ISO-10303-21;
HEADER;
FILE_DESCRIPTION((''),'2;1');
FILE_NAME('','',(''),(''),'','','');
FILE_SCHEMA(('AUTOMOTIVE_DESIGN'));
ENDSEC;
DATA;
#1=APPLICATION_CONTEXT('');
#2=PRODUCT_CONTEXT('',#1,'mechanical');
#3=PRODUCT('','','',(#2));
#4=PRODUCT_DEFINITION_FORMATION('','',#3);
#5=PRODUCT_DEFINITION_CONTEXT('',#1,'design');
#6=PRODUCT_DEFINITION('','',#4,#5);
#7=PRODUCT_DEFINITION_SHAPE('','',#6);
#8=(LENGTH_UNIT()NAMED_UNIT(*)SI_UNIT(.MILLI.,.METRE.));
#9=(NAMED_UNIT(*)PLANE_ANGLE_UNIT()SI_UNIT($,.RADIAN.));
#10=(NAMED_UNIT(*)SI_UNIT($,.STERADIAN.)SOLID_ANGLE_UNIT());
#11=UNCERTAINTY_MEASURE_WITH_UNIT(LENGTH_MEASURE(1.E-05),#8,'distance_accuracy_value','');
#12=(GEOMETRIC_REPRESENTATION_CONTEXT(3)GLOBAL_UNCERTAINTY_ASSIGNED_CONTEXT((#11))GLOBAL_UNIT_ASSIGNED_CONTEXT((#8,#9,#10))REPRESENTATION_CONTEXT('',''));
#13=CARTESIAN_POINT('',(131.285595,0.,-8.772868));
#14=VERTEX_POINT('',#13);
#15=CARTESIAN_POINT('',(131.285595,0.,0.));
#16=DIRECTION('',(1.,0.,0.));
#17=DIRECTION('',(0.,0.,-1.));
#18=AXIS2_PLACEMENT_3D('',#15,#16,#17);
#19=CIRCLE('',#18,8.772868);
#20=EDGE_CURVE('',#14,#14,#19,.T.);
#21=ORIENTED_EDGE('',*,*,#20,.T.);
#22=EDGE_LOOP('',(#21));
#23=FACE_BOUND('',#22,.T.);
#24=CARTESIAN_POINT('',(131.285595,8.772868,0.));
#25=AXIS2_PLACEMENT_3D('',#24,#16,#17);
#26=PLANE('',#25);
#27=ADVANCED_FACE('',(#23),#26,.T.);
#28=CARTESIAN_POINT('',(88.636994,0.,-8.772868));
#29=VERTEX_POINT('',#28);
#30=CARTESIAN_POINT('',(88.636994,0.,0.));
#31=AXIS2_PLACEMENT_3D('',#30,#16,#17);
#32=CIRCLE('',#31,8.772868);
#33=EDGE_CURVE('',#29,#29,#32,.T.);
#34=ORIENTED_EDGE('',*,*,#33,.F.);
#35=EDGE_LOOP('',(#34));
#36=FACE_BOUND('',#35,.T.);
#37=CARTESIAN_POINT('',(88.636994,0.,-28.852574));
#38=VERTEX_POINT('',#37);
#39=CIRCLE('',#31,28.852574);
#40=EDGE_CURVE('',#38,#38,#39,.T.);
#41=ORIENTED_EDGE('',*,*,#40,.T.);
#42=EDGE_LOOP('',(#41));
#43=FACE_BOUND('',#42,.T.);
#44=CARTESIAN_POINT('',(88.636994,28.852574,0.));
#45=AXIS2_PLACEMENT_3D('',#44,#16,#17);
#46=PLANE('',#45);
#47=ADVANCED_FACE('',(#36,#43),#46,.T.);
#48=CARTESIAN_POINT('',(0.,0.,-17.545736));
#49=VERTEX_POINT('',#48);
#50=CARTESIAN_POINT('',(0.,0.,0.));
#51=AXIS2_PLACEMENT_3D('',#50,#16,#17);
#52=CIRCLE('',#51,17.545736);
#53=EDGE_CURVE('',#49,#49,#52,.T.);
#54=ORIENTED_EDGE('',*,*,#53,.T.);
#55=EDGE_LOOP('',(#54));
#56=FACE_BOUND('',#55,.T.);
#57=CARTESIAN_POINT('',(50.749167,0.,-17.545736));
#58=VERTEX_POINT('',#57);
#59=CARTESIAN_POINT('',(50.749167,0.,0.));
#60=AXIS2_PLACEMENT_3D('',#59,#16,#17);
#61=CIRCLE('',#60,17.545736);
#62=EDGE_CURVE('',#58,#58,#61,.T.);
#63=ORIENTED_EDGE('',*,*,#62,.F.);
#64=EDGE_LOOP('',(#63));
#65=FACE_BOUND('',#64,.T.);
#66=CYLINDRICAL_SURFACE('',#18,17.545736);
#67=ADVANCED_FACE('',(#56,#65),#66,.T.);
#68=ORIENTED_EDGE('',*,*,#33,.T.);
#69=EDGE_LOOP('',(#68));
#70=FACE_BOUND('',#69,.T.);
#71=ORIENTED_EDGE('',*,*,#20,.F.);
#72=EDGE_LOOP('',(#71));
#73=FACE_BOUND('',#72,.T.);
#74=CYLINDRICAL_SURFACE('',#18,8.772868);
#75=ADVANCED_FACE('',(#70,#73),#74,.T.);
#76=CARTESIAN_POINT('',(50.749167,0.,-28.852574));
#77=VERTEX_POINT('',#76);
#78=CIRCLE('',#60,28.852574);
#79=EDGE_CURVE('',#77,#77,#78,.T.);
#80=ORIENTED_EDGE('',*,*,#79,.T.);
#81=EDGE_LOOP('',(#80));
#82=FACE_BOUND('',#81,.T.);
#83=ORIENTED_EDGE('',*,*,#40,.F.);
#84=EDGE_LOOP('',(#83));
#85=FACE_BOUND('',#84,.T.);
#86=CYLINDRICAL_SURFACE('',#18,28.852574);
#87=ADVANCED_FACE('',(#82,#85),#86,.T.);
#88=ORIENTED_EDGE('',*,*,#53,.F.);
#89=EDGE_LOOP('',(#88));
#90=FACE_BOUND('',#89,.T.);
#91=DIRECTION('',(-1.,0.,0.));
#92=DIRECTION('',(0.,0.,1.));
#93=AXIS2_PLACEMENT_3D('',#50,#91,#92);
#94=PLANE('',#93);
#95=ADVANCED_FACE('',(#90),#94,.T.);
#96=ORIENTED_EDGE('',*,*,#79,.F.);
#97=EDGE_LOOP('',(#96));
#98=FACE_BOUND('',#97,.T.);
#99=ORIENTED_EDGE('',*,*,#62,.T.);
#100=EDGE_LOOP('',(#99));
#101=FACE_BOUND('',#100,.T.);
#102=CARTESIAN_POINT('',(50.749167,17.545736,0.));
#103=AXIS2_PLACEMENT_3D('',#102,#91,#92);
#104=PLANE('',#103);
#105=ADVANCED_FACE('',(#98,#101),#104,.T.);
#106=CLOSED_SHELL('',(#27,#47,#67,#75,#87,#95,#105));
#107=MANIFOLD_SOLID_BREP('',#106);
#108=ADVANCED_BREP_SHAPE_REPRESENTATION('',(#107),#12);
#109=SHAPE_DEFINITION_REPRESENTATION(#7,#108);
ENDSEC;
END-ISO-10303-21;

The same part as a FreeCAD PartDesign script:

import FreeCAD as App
import Part
import Sketcher


def add_polygon(sketch, points):
    """Adds a closed chain of lines whose ends are joined by coincident constraints."""
    first, n = sketch.GeometryCount, len(points)
    for a, b in zip(points, points[1:] + points[:1]):
        sketch.addGeometry(Part.LineSegment(App.Vector(*a, 0), App.Vector(*b, 0)), False)
    for i in range(n):
        sketch.addConstraint(Sketcher.Constraint("Coincident", first + i, 2, first + (i + 1) % n, 1))

doc = App.newDocument("Part")
body = doc.addObject("PartDesign::Body", "Body")

# Sketch on XY plane
sketch1 = body.newObject("Sketcher::SketchObject", "Sketch")
sketch1.AttachmentSupport = (doc.getObject("XY_Plane"), [""])
sketch1.MapMode = "FlatFace"
add_polygon(sketch1, [(0, 18), (0, 0), (131, 0), (131, 9), (89, 9), (89, 29), (51, 29), (51, 18)])  # lines 0-7
sketch1.addConstraint(Sketcher.Constraint("Vertical", 0))
sketch1.addConstraint(Sketcher.Constraint("Horizontal", 1))
sketch1.addConstraint(Sketcher.Constraint("Vertical", 2))
sketch1.addConstraint(Sketcher.Constraint("Horizontal", 3))
sketch1.addConstraint(Sketcher.Constraint("Vertical", 4))
sketch1.addConstraint(Sketcher.Constraint("Horizontal", 5))
sketch1.addConstraint(Sketcher.Constraint("Vertical", 6))
sketch1.addConstraint(Sketcher.Constraint("Horizontal", 7))
sketch1.addConstraint(Sketcher.Constraint("Coincident", 0, 2, -1, 1))
sketch1.addConstraint(Sketcher.Constraint("DistanceX", 3, 2, 3, 1, 42.648601))
sketch1.addConstraint(Sketcher.Constraint("DistanceY", 6, 2, 6, 1, 11.306838))
sketch1.addConstraint(Sketcher.Constraint("DistanceX", 1, 1, 1, 2, 131.285595))
sketch1.addConstraint(Sketcher.Constraint("DistanceX", 5, 2, 5, 1, 37.887827))
sketch1.addConstraint(Sketcher.Constraint("DistanceY", 0, 2, 0, 1, 17.545736))
sketch1.addConstraint(Sketcher.Constraint("DistanceY", 2, 1, 2, 2, 8.772868))
revolution = body.newObject("PartDesign::Revolution", "Revolution")
revolution.Profile = sketch1
revolution.ReferenceAxis = (sketch1, ["H_Axis"])
revolution.Angle = 360

doc.recompute()
